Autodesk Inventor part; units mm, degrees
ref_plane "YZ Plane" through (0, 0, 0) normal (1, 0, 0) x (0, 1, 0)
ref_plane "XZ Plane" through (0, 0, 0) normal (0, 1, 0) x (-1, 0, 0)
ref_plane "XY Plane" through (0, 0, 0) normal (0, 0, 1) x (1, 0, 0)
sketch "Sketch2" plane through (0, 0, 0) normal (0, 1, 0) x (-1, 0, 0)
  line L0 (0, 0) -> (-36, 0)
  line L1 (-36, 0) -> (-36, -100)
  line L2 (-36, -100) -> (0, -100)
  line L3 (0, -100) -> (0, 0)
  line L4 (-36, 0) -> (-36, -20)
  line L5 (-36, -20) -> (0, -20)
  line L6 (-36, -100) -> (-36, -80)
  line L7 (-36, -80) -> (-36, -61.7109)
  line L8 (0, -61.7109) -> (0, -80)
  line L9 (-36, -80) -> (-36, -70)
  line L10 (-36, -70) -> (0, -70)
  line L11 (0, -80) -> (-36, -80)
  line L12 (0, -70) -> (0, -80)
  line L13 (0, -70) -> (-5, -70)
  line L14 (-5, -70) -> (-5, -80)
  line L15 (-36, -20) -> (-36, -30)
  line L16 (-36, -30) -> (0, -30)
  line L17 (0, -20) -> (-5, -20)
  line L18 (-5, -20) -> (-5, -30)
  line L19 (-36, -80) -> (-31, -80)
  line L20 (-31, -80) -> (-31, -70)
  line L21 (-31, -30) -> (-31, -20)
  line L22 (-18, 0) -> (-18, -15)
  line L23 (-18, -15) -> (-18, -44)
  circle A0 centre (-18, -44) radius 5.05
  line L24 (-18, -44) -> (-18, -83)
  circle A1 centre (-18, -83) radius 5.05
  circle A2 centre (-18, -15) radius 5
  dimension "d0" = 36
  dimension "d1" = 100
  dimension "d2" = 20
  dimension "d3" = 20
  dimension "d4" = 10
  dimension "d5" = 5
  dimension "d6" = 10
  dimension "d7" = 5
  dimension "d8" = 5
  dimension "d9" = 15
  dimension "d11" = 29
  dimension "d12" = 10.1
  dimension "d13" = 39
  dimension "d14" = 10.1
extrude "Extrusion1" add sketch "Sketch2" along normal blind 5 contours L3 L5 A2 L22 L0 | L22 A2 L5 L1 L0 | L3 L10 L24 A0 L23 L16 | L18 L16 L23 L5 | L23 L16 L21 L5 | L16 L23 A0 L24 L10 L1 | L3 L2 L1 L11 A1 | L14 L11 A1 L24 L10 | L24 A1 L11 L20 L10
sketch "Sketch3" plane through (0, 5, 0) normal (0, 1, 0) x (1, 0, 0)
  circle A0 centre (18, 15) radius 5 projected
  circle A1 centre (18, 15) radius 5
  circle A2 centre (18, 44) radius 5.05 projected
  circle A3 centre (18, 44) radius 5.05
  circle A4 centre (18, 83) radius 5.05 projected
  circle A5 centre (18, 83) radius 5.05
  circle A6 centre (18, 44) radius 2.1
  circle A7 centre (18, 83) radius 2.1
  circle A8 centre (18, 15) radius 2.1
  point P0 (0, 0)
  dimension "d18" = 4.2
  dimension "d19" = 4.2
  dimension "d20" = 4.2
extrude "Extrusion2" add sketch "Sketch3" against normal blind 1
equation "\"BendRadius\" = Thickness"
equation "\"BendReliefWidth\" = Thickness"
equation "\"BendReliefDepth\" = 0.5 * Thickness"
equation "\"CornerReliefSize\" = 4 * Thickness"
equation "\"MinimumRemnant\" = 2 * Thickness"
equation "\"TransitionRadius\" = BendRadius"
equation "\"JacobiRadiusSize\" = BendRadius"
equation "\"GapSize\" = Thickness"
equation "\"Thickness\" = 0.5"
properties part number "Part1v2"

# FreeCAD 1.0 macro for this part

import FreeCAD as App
import Part
import Sketcher

V = App.Vector

doc = App.newDocument("Part")
body = doc.addObject("PartDesign::Body", "Body")

# Sketch on XZ plane
sketch1 = body.newObject("Sketcher::SketchObject", "Sketch")
sketch1.AttachmentSupport = (doc.getObject("XZ_Plane"), [""])
sketch1.MapMode = "FlatFace"
sketch1.addGeometry(Part.LineSegment(V(0, -20, 0), V(0, 0, 0)), False)
sketch1.addGeometry(Part.LineSegment(V(0, 0, 0), V(36, 0, 0)), False)
sketch1.addGeometry(Part.LineSegment(V(36, 0, 0), V(36, -20, 0)), False)
sketch1.addGeometry(Part.LineSegment(V(36, -20, 0), V(31, -20, 0)), False)
sketch1.addGeometry(Part.LineSegment(V(31, -20, 0), V(31, -30, 0)), False)
sketch1.addGeometry(Part.LineSegment(V(31, -30, 0), V(36, -30, 0)), False)
sketch1.addGeometry(Part.LineSegment(V(36, -30, 0), V(36, -70, 0)), False)
sketch1.addGeometry(Part.LineSegment(V(36, -70, 0), V(31, -70, 0)), False)
sketch1.addGeometry(Part.LineSegment(V(31, -70, 0), V(31, -80, 0)), False)
sketch1.addGeometry(Part.LineSegment(V(31, -80, 0), V(36, -80, 0)), False)
sketch1.addGeometry(Part.LineSegment(V(36, -80, 0), V(36, -100, 0)), False)
sketch1.addGeometry(Part.LineSegment(V(36, -100, 0), V(0, -100, 0)), False)
sketch1.addGeometry(Part.LineSegment(V(0, -100, 0), V(0, -80, 0)), False)
sketch1.addGeometry(Part.LineSegment(V(0, -80, 0), V(5, -80, 0)), False)
sketch1.addGeometry(Part.LineSegment(V(5, -80, 0), V(5, -70, 0)), False)
sketch1.addGeometry(Part.LineSegment(V(5, -70, 0), V(0, -70, 0)), False)
sketch1.addGeometry(Part.LineSegment(V(0, -70, 0), V(0, -30, 0)), False)
sketch1.addGeometry(Part.LineSegment(V(0, -30, 0), V(5, -30, 0)), False)
sketch1.addGeometry(Part.LineSegment(V(5, -30, 0), V(5, -20, 0)), False)
sketch1.addGeometry(Part.LineSegment(V(5, -20, 0), V(0, -20, 0)), False)
sketch1.addGeometry(Part.Circle(V(18, -15, 0), V(0, 0, 1), 5), False)
sketch1.addGeometry(Part.Circle(V(18, -44, 0), V(0, 0, 1), 5), False)
sketch1.addGeometry(Part.Circle(V(18, -83, 0), V(0, 0, 1), 5), False)
sketch1.addConstraint(Sketcher.Constraint("Coincident", 0, 2, 1, 1))
sketch1.addConstraint(Sketcher.Constraint("Coincident", 1, 2, 2, 1))
sketch1.addConstraint(Sketcher.Constraint("Coincident", 2, 2, 3, 1))
sketch1.addConstraint(Sketcher.Constraint("Coincident", 3, 2, 4, 1))
sketch1.addConstraint(Sketcher.Constraint("Coincident", 4, 2, 5, 1))
sketch1.addConstraint(Sketcher.Constraint("Coincident", 5, 2, 6, 1))
sketch1.addConstraint(Sketcher.Constraint("Coincident", 6, 2, 7, 1))
sketch1.addConstraint(Sketcher.Constraint("Coincident", 7, 2, 8, 1))
sketch1.addConstraint(Sketcher.Constraint("Coincident", 8, 2, 9, 1))
sketch1.addConstraint(Sketcher.Constraint("Coincident", 9, 2, 10, 1))
sketch1.addConstraint(Sketcher.Constraint("Coincident", 10, 2, 11, 1))
sketch1.addConstraint(Sketcher.Constraint("Coincident", 11, 2, 12, 1))
sketch1.addConstraint(Sketcher.Constraint("Coincident", 12, 2, 13, 1))
sketch1.addConstraint(Sketcher.Constraint("Coincident", 13, 2, 14, 1))
sketch1.addConstraint(Sketcher.Constraint("Coincident", 14, 2, 15, 1))
sketch1.addConstraint(Sketcher.Constraint("Coincident", 15, 2, 16, 1))
sketch1.addConstraint(Sketcher.Constraint("Coincident", 16, 2, 17, 1))
sketch1.addConstraint(Sketcher.Constraint("Coincident", 17, 2, 18, 1))
sketch1.addConstraint(Sketcher.Constraint("Coincident", 18, 2, 19, 1))
sketch1.addConstraint(Sketcher.Constraint("Coincident", 19, 2, 0, 1))
sketch1.addConstraint(Sketcher.Constraint("Vertical", 0))
sketch1.addConstraint(Sketcher.Constraint("Horizontal", 1))
sketch1.addConstraint(Sketcher.Constraint("Vertical", 2))
sketch1.addConstraint(Sketcher.Constraint("Horizontal", 3))
sketch1.addConstraint(Sketcher.Constraint("Vertical", 4))
sketch1.addConstraint(Sketcher.Constraint("Horizontal", 5))
sketch1.addConstraint(Sketcher.Constraint("Vertical", 6))
sketch1.addConstraint(Sketcher.Constraint("Horizontal", 7))
sketch1.addConstraint(Sketcher.Constraint("Vertical", 8))
sketch1.addConstraint(Sketcher.Constraint("Horizontal", 9))
sketch1.addConstraint(Sketcher.Constraint("Vertical", 10))
sketch1.addConstraint(Sketcher.Constraint("Horizontal", 11))
sketch1.addConstraint(Sketcher.Constraint("Vertical", 12))
sketch1.addConstraint(Sketcher.Constraint("Horizontal", 13))
sketch1.addConstraint(Sketcher.Constraint("Vertical", 14))
sketch1.addConstraint(Sketcher.Constraint("Horizontal", 15))
sketch1.addConstraint(Sketcher.Constraint("Vertical", 16))
sketch1.addConstraint(Sketcher.Constraint("Horizontal", 17))
sketch1.addConstraint(Sketcher.Constraint("Vertical", 18))
sketch1.addConstraint(Sketcher.Constraint("Horizontal", 19))
sketch1.addConstraint(Sketcher.Constraint("Coincident", 0, 2, -1, 1))
sketch1.addConstraint(Sketcher.Constraint("Equal", 21, 22))
sketch1.addConstraint(Sketcher.Constraint("PointOnObject", 11, 2, -2))
sketch1.addConstraint(Sketcher.Constraint("PointOnObject", 15, 2, -2))
sketch1.addConstraint(Sketcher.Constraint("Horizontal", 9, 2, 12, 2))
sketch1.addConstraint(Sketcher.Constraint("Horizontal", 7, 2, 14, 2))
sketch1.addConstraint(Sketcher.Constraint("Horizontal", 5, 2, 16, 2))
sketch1.addConstraint(Sketcher.Constraint("Horizontal", 3, 2, 18, 2))
sketch1.addConstraint(Sketcher.Constraint("Vertical", 20, 3, 21, 3))
sketch1.addConstraint(Sketcher.Constraint("Vertical", 21, 3, 22, 3))
sketch1.addConstraint(Sketcher.Constraint("Vertical", 2, 2, 5, 2))
sketch1.addConstraint(Sketcher.Constraint("Vertical", 4, 2, 7, 2))
sketch1.addConstraint(Sketcher.Constraint("Vertical", 6, 2, 9, 2))
sketch1.addConstraint(Sketcher.Constraint("Vertical", 14, 2, 17, 2))
sketch1.addConstraint(Sketcher.Constraint("Equal", 9, 13))
sketch1.addConstraint(Sketcher.Constraint("Equal", 4, 8))
sketch1.addConstraint(Sketcher.Constraint("Equal", 2, 10))
sketch1.addConstraint(Sketcher.Constraint("Diameter", 20, 10.0))
sketch1.addConstraint(Sketcher.Constraint("Diameter", 21, 10.1))
sketch1.addConstraint(Sketcher.Constraint("DistanceX", 1, 1, 1, 2, 36.0))
sketch1.addConstraint(Sketcher.Constraint("DistanceX", 3, 2, 3, 1, 5.0))
sketch1.addConstraint(Sketcher.Constraint("DistanceY", 0, 1, 0, 2, 20.0))
sketch1.addConstraint(Sketcher.Constraint("DistanceY", 4, 2, 4, 1, 10.0))
sketch1.addConstraint(Sketcher.Constraint("DistanceY", 20, 3, -1, 1, 15.0))
sketch1.addConstraint(Sketcher.Constraint("DistanceY", 10, 2, -1, 1, 100.0))
sketch1.addConstraint(Sketcher.Constraint("DistanceY", 21, 3, 20, 3, 29.0))
sketch1.addConstraint(Sketcher.Constraint("DistanceY", 22, 3, 21, 3, 39.0))
sketch1.addConstraint(Sketcher.Constraint("DistanceX", -1, 1, 20, 3, 18.0))
pad1 = body.newObject("PartDesign::Pad", "Pad")
pad1.Profile = sketch1
pad1.Length = 5
pad1.Reversed = True

# Sketch on XZ plane
sketch2 = body.newObject("Sketcher::SketchObject", "Sketch001")
sketch2.AttachmentSupport = (doc.getObject("XZ_Plane"), [""])
sketch2.MapMode = "FlatFace"
sketch2.AttachmentOffset = App.Placement(V(0, 0, -5), App.Rotation())
sketch2.addGeometry(Part.Circle(V(18, -15, 0), V(0, 0, 1), 5), False)
sketch2.addGeometry(Part.Circle(V(18, -15, 0), V(0, 0, 1), 2.1), False)
sketch2.addGeometry(Part.Circle(V(18, -44, 0), V(0, 0, 1), 5), False)
sketch2.addGeometry(Part.Circle(V(18, -44, 0), V(0, 0, 1), 2.1), False)
sketch2.addGeometry(Part.Circle(V(18, -83, 0), V(0, 0, 1), 5), False)
sketch2.addGeometry(Part.Circle(V(18, -83, 0), V(0, 0, 1), 2.1), False)
sketch2.addConstraint(Sketcher.Constraint("Coincident", 1, 3, 0, 3))
sketch2.addConstraint(Sketcher.Constraint("Coincident", 3, 3, 2, 3))
sketch2.addConstraint(Sketcher.Constraint("Coincident", 5, 3, 4, 3))
sketch2.addConstraint(Sketcher.Constraint("Equal", 1, 3))
sketch2.addConstraint(Sketcher.Constraint("Equal", 2, 4))
sketch2.addConstraint(Sketcher.Constraint("Equal", 3, 5))
sketch2.addConstraint(Sketcher.Constraint("Vertical", 1, 3, 2, 3))
sketch2.addConstraint(Sketcher.Constraint("Vertical", 3, 3, 4, 3))
sketch2.addConstraint(Sketcher.Constraint("Diameter", 1, 4.2))
sketch2.addConstraint(Sketcher.Constraint("Diameter", 0, 10.0))
sketch2.addConstraint(Sketcher.Constraint("Diameter", 2, 10.1))
sketch2.addConstraint(Sketcher.Constraint("DistanceX", -1, 1, 0, 3, 18.0))
sketch2.addConstraint(Sketcher.Constraint("DistanceY", 0, 3, -1, 1, 15.0))
sketch2.addConstraint(Sketcher.Constraint("DistanceY", 2, 3, -1, 1, 44.0))
sketch2.addConstraint(Sketcher.Constraint("DistanceY", 4, 3, -1, 1, 83.0))
pad2 = body.newObject("PartDesign::Pad", "Pad001")
pad2.Profile = sketch2
pad2.Length = 1

doc.recompute()
